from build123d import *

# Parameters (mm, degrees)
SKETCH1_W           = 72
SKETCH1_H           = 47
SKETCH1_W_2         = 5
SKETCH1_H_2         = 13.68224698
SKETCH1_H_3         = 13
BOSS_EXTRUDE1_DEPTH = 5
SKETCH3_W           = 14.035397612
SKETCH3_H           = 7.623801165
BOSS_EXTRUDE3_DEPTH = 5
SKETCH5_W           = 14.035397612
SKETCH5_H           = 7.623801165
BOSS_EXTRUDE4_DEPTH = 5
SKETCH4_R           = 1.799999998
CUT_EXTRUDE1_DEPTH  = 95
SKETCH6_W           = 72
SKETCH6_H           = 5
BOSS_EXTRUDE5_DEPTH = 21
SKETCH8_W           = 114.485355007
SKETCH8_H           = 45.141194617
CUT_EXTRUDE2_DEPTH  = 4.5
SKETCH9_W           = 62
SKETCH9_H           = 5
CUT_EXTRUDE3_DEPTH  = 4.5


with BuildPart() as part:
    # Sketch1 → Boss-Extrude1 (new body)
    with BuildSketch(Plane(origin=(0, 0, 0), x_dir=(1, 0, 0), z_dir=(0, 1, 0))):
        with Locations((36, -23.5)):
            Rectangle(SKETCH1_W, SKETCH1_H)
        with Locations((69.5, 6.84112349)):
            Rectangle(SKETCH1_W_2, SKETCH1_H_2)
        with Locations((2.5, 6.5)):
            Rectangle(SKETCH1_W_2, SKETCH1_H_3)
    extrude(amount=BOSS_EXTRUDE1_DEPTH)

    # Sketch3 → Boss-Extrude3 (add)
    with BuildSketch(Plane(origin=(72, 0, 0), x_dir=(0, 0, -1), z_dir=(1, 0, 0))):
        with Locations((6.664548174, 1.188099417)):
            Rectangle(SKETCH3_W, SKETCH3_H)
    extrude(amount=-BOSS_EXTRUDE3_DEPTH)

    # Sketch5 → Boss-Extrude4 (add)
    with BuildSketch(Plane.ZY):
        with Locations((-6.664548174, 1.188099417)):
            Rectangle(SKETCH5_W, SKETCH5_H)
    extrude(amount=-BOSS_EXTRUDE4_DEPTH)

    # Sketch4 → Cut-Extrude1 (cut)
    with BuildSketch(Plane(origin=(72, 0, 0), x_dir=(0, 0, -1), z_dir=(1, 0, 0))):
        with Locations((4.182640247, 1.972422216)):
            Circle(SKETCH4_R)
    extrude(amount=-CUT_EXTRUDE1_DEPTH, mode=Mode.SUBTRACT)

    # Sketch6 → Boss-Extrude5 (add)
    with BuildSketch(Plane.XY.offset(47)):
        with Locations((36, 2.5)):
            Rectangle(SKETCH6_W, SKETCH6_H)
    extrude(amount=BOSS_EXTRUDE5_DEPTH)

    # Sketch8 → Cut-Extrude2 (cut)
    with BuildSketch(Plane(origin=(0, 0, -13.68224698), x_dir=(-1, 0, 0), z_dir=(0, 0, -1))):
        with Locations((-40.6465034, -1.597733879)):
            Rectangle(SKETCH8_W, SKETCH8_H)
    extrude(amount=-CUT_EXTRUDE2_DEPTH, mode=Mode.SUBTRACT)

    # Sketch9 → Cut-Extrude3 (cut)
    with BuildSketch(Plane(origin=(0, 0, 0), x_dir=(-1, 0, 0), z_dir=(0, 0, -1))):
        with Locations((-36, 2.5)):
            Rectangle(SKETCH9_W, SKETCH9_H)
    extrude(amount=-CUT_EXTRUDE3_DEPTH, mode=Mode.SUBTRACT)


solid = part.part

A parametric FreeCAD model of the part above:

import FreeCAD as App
import Part
import Sketcher
Q = App.Units.Quantity


def add_polygon(sketch, points):
    """Adds a closed chain of lines whose ends are joined by coincident constraints."""
    first, n = sketch.GeometryCount, len(points)
    for a, b in zip(points, points[1:] + points[:1]):
        sketch.addGeometry(Part.LineSegment(App.Vector(*a, 0), App.Vector(*b, 0)), False)
    for i in range(n):
        sketch.addConstraint(Sketcher.Constraint("Coincident", first + i, 2, first + (i + 1) % n, 1))

doc = App.newDocument("Part")
params = doc.addObject("Spreadsheet::Sheet", "Params")
for row, (alias, value) in enumerate([
    ("sketch1_width", "72 mm"),
    ("sketch1_width2", "5 mm"),
    ("sketch1_height", "13 mm"),
    ("sketch1_height2", "60 mm"),
    ("pad1_length", "5 mm"),
    ("pad2_length", "5 mm"),
    ("pad3_length", "5 mm"),
    ("sketch4_diameter", "3.6 mm"),
    ("pocket1_length", "95 mm"),
    ("sketch5_width", "72 mm"),
    ("sketch5_height", "5 mm"),
    ("pad4_length", "21 mm"),
    ("pocket2_length", "4.5 mm"),
    ("sketch7_width", "62 mm"),
    ("sketch7_height", "5 mm"),
    ("pocket3_length", "4.5 mm"),
], start=1):
    params.set(f"A{row}", alias)
    params.set(f"B{row}", "=" + value)
    params.setAlias(f"B{row}", alias)

body = doc.addObject("PartDesign::Body", "Body")

# Sketch on XZ plane
sketch1 = body.newObject("Sketcher::SketchObject", "Sketch")
sketch1.AttachmentSupport = (doc.getObject("XZ_Plane"), [""])
sketch1.MapMode = "FlatFace"
add_polygon(sketch1, [(0, 47), (72, 47), (72, -13.682247), (67, -13.682247), (67, 0), (5, 0), (5, -13), (0, -13)])  # lines 0-7
sketch1.addConstraint([
    Sketcher.Constraint("Horizontal", 0),
    Sketcher.Constraint("Vertical", 1),
    Sketcher.Constraint("Horizontal", 2),
    Sketcher.Constraint("Vertical", 3),
    Sketcher.Constraint("Horizontal", 4),
    Sketcher.Constraint("Vertical", 5),
    Sketcher.Constraint("Horizontal", 6),
    Sketcher.Constraint("Vertical", 7),
    Sketcher.Constraint("PointOnObject", 3, 2, -1),
    Sketcher.Constraint("PointOnObject", 6, 2, -2),
    Sketcher.Constraint("Equal", 2, 6),
    Sketcher.Constraint("DistanceX", 0, 1, 0, 2, Q("72 mm")),
    Sketcher.Constraint("DistanceX", 2, 2, 2, 1, Q("5 mm")),
    Sketcher.Constraint("DistanceY", 5, 2, 5, 1, Q("13 mm")),
    Sketcher.Constraint("DistanceY", 7, 1, 7, 2, Q("60 mm")),
    Sketcher.Constraint("DistanceY", 1, 2, 1, 1, Q("60.682247 mm")),
])
sketch1.setExpression("Constraints[19]", "Params.sketch1_width")
sketch1.setExpression("Constraints[20]", "Params.sketch1_width2")
sketch1.setExpression("Constraints[21]", "Params.sketch1_height")
sketch1.setExpression("Constraints[22]", "Params.sketch1_height2")
pad1 = body.newObject("PartDesign::Pad", "Pad")
pad1.Profile = sketch1
pad1.setExpression("Length", "Params.pad1_length")
pad1.Reversed = True

# Sketch on YZ plane
sketch2 = body.newObject("Sketcher::SketchObject", "Sketch001")
sketch2.AttachmentSupport = (doc.getObject("YZ_Plane"), [""])
sketch2.MapMode = "FlatFace"
sketch2.AttachmentOffset = App.Placement(App.Vector(0, 0, 72), App.Rotation())
add_polygon(sketch2, [(5, 0.353151), (-2.623801, 0.353151), (-2.623801, -13.682247), (5, -13.682247)])  # lines 0-3
sketch2.addConstraint([
    Sketcher.Constraint("Horizontal", 0),
    Sketcher.Constraint("Vertical", 1),
    Sketcher.Constraint("Horizontal", 2),
    Sketcher.Constraint("Vertical", 3),
    Sketcher.Constraint("DistanceX", -1, 1, 2, 2, Q("5 mm")),
    Sketcher.Constraint("DistanceX", 0, 2, 0, 1, Q("7.623801 mm")),
    Sketcher.Constraint("DistanceY", 1, 2, 1, 1, Q("14.035398 mm")),
    Sketcher.Constraint("DistanceY", -1, 1, 0, 2, Q("0.353151 mm")),
])
pad2 = body.newObject("PartDesign::Pad", "Pad001")
pad2.Profile = sketch2
pad2.setExpression("Length", "Params.pad2_length")
pad2.Reversed = True

# Sketch on YZ plane
sketch3 = body.newObject("Sketcher::SketchObject", "Sketch002")
sketch3.AttachmentSupport = (doc.getObject("YZ_Plane"), [""])
sketch3.MapMode = "FlatFace"
add_polygon(sketch3, [(5, -13.682247), (-2.623801, -13.682247), (-2.623801, 0.353151), (5, 0.353151)])  # lines 0-3
sketch3.addConstraint([
    Sketcher.Constraint("Horizontal", 0),
    Sketcher.Constraint("Vertical", 1),
    Sketcher.Constraint("Horizontal", 2),
    Sketcher.Constraint("Vertical", 3),
    Sketcher.Constraint("DistanceX", -1, 1, 2, 2, Q("5 mm")),
    Sketcher.Constraint("DistanceX", 0, 2, 0, 1, Q("7.623801 mm")),
    Sketcher.Constraint("DistanceY", 1, 1, 1, 2, Q("14.035398 mm")),
    Sketcher.Constraint("DistanceY", -1, 1, 1, 2, Q("0.353151 mm")),
])
pad3 = body.newObject("PartDesign::Pad", "Pad002")
pad3.Profile = sketch3
pad3.setExpression("Length", "Params.pad3_length")

# Sketch on YZ plane
sketch4 = body.newObject("Sketcher::SketchObject", "Sketch003")
sketch4.AttachmentSupport = (doc.getObject("YZ_Plane"), [""])
sketch4.MapMode = "FlatFace"
sketch4.AttachmentOffset = App.Placement(App.Vector(0, 0, 72), App.Rotation())
sketch4.addGeometry(Part.Circle(App.Vector(1.972422, -4.18264, 0), App.Vector(0, 0, 1), 1.8), False)
sketch4.addConstraint([
    Sketcher.Constraint("Diameter", 0, Q("3.6 mm")),
    Sketcher.Constraint("DistanceY", 0, 3, -1, 1, Q("4.18264 mm")),
    Sketcher.Constraint("DistanceX", -1, 1, 0, 3, Q("1.972422 mm")),
])
sketch4.setExpression("Constraints[0]", "Params.sketch4_diameter")
pocket1 = body.newObject("PartDesign::Pocket", "Pocket")
pocket1.Profile = sketch4
pocket1.setExpression("Length", "Params.pocket1_length")

# Sketch on XY plane
sketch5 = body.newObject("Sketcher::SketchObject", "Sketch004")
sketch5.AttachmentSupport = (doc.getObject("XY_Plane"), [""])
sketch5.MapMode = "FlatFace"
sketch5.AttachmentOffset = App.Placement(App.Vector(0, 0, 47), App.Rotation())
add_polygon(sketch5, [(0, 5), (0, 0), (72, 0), (72, 5)])  # lines 0-3
sketch5.addConstraint([
    Sketcher.Constraint("Vertical", 0),
    Sketcher.Constraint("Horizontal", 1),
    Sketcher.Constraint("Vertical", 2),
    Sketcher.Constraint("Horizontal", 3),
    Sketcher.Constraint("Coincident", 0, 2, -1, 1),
    Sketcher.Constraint("DistanceX", 1, 1, 1, 2, Q("72 mm")),
    Sketcher.Constraint("DistanceY", 0, 2, 0, 1, Q("5 mm")),
])
sketch5.setExpression("Constraints[9]", "Params.sketch5_width")
sketch5.setExpression("Constraints[10]", "Params.sketch5_height")
pad4 = body.newObject("PartDesign::Pad", "Pad003")
pad4.Profile = sketch5
pad4.setExpression("Length", "Params.pad4_length")

# Sketch on XY plane
sketch6 = body.newObject("Sketcher::SketchObject", "Sketch005")
sketch6.AttachmentSupport = (doc.getObject("XY_Plane"), [""])
sketch6.MapMode = "FlatFace"
sketch6.AttachmentOffset = App.Placement(App.Vector(0, 0, -13.682247), App.Rotation())
add_polygon(sketch6, [(97.889181, 20.972863), (97.889181, -24.168331), (-16.596174, -24.168331), (-16.596174, 20.972863)])  # lines 0-3
sketch6.addConstraint([
    Sketcher.Constraint("Vertical", 0),
    Sketcher.Constraint("Horizontal", 1),
    Sketcher.Constraint("Vertical", 2),
    Sketcher.Constraint("Horizontal", 3),
    Sketcher.Constraint("DistanceX", 1, 2, 1, 1, Q("114.485355 mm")),
    Sketcher.Constraint("DistanceY", 0, 2, 0, 1, Q("45.141195 mm")),
    Sketcher.Constraint("DistanceX", -1, 1, 0, 2, Q("97.889181 mm")),
    Sketcher.Constraint("DistanceY", 0, 2, -1, 1, Q("24.168331 mm")),
])
pocket2 = body.newObject("PartDesign::Pocket", "Pocket001")
pocket2.Profile = sketch6
pocket2.setExpression("Length", "Params.pocket2_length")
pocket2.Reversed = True

# Sketch on XY plane
sketch7 = body.newObject("Sketcher::SketchObject", "Sketch006")
sketch7.AttachmentSupport = (doc.getObject("XY_Plane"), [""])
sketch7.MapMode = "FlatFace"
add_polygon(sketch7, [(67, 5), (67, 0), (5, 0), (5, 5)])  # lines 0-3
sketch7.addConstraint([
    Sketcher.Constraint("Vertical", 0),
    Sketcher.Constraint("Horizontal", 1),
    Sketcher.Constraint("Vertical", 2),
    Sketcher.Constraint("Horizontal", 3),
    Sketcher.Constraint("PointOnObject", 0, 2, -1),
    Sketcher.Constraint("DistanceX", 1, 2, 1, 1, Q("62 mm")),
    Sketcher.Constraint("DistanceY", 0, 2, 0, 1, Q("5 mm")),
    Sketcher.Constraint("DistanceX", -1, 1, 0, 2, Q("67 mm")),
])
sketch7.setExpression("Constraints[9]", "Params.sketch7_width")
sketch7.setExpression("Constraints[10]", "Params.sketch7_height")
pocket3 = body.newObject("PartDesign::Pocket", "Pocket002")
pocket3.Profile = sketch7
pocket3.setExpression("Length", "Params.pocket3_length")
pocket3.Reversed = True

doc.recompute()
